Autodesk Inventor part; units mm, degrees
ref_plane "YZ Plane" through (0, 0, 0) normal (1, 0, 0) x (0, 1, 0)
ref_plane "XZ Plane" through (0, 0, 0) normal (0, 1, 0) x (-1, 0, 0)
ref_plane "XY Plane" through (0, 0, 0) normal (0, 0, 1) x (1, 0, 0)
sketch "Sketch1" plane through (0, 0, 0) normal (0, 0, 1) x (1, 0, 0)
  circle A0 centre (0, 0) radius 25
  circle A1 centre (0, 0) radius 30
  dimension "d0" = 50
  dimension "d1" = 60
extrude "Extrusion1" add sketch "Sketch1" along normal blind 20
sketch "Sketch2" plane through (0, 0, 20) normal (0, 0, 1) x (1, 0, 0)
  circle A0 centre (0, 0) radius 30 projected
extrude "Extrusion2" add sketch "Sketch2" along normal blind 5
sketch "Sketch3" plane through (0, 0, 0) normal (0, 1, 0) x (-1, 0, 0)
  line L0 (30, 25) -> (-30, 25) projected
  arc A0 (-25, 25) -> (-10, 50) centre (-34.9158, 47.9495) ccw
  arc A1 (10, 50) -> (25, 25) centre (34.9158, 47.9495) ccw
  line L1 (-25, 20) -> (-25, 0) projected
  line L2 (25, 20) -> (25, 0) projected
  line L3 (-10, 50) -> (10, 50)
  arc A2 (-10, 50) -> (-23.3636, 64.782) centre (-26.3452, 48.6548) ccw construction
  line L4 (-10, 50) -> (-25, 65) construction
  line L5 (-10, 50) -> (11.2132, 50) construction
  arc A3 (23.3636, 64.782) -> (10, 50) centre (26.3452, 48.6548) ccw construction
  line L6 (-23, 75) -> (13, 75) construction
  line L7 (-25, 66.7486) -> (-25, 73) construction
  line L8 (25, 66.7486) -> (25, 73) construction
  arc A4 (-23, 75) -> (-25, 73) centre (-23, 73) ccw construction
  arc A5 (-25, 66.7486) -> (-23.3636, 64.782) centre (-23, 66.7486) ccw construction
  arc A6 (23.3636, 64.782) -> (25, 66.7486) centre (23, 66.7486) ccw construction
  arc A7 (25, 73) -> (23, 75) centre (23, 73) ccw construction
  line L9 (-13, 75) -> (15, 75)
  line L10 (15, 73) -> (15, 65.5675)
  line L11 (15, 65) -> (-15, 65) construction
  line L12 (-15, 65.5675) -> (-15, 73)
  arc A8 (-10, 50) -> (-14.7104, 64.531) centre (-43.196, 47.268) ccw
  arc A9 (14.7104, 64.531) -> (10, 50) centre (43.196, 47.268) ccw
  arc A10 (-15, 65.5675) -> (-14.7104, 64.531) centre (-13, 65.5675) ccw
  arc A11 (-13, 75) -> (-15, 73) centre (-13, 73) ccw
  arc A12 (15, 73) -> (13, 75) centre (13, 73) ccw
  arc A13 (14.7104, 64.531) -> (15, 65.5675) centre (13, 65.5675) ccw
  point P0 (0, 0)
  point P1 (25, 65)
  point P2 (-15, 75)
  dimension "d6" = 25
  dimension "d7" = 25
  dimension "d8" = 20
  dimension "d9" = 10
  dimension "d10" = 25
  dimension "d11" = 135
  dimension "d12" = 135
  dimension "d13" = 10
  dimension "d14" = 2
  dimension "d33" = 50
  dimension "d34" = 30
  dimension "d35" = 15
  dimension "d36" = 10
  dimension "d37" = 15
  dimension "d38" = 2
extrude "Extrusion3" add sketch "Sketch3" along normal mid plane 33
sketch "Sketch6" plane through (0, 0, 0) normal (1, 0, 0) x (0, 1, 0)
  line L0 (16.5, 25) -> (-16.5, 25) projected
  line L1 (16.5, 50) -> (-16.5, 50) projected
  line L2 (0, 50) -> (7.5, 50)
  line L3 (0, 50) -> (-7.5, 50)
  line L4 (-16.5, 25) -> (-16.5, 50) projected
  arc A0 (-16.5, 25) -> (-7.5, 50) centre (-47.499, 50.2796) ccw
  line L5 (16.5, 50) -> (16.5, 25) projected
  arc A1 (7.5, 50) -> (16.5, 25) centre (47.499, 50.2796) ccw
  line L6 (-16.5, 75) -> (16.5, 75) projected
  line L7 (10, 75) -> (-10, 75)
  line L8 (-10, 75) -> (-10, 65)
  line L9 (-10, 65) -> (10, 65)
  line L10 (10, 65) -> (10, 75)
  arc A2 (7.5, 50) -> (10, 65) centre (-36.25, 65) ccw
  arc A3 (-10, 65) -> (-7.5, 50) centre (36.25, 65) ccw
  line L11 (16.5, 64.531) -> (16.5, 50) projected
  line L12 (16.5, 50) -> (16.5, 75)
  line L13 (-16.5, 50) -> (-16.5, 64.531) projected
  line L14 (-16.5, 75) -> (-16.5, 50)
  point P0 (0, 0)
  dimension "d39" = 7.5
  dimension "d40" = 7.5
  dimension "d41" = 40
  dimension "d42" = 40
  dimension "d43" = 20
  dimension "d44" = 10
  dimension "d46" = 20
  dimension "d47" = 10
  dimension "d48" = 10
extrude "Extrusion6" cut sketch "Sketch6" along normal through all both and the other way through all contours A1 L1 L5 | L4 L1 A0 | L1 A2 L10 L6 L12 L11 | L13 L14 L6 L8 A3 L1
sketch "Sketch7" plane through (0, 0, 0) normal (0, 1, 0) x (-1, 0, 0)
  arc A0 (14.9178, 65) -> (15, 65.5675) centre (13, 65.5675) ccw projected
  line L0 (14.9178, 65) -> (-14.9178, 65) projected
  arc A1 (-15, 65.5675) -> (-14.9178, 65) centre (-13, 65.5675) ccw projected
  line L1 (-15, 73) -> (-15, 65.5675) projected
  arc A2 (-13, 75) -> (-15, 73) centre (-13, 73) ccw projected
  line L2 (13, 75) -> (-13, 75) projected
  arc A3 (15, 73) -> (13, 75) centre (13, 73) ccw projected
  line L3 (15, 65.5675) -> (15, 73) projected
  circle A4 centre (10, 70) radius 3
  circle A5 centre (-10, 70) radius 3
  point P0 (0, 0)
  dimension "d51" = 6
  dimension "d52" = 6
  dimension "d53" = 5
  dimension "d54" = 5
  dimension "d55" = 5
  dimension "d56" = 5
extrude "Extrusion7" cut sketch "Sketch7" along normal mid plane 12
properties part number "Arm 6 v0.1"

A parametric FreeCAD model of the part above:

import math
import FreeCAD as App
import Part
import Sketcher
Q = App.Units.Quantity

doc = App.newDocument("Part")
body = doc.addObject("PartDesign::Body", "Body")

sketch1 = body.newObject("Sketcher::SketchObject", "Sketch")
sketch1.AttachmentSupport = (doc.getObject("XY_Plane"), [""])
sketch1.MapMode = "FlatFace"
sketch1.addGeometry([
    Part.Circle(App.Vector(0, 0, 0), App.Vector(0, 0, 1), 30),
    Part.Circle(App.Vector(0, 0, 0), App.Vector(0, 0, 1), 25),
], False)
sketch1.addConstraint([
    Sketcher.Constraint("Coincident", 0, 3, -1, 1),
    Sketcher.Constraint("Coincident", 1, 3, -1, 1),
    Sketcher.Constraint("Diameter", 0, Q("60 mm")),
    Sketcher.Constraint("Diameter", 1, Q("50 mm")),
])
pad1 = body.newObject("PartDesign::Pad", "Pad")
pad1.Profile = sketch1
pad1.Length = 20

sketch2 = body.newObject("Sketcher::SketchObject", "Sketch001")
sketch2.AttachmentSupport = (doc.getObject("XY_Plane"), [""])
sketch2.MapMode = "FlatFace"
sketch2.AttachmentOffset = App.Placement(App.Vector(0, 0, 20), App.Rotation())
sketch2.addGeometry(Part.Circle(App.Vector(0, 0, 0), App.Vector(0, 0, 1), 30), False)
sketch2.addConstraint([
    Sketcher.Constraint("Coincident", 0, 3, -1, 1),
    Sketcher.Constraint("Diameter", 0, Q("60 mm")),
])
pad2 = body.newObject("PartDesign::Pad", "Pad001")
pad2.Profile = sketch2
pad2.Length = 5

sketch3 = body.newObject("Sketcher::SketchObject", "Sketch002")
sketch3.AttachmentSupport = (doc.getObject("XZ_Plane"), [""])
sketch3.MapMode = "FlatFace"
sketch3.addGeometry([
    Part.LineSegment(App.Vector(25, 25, 0), App.Vector(-25, 25, 0)),
    Part.ArcOfCircle(Part.Circle(App.Vector(-34.9158, 47.9495, 0), App.Vector(0, 0, 1), 25.000033), math.radians(-66.632256), math.radians(4.704679)),
    Part.ArcOfCircle(Part.Circle(App.Vector(-43.196, 47.268, 0), App.Vector(0, 0, 1), 33.308266), math.radians(4.704787), math.radians(31.216932)),
    Part.ArcOfCircle(Part.Circle(App.Vector(-13, 65.5675, 0), App.Vector(0, 0, 1), 1.99995), math.radians(180), math.radians(211.215804)),
    Part.LineSegment(App.Vector(-15, 65.5675, 0), App.Vector(-15, 73, 0)),
    Part.ArcOfCircle(Part.Circle(App.Vector(-13, 73, 0), App.Vector(0, 0, 1), 2), math.radians(90), math.radians(180)),
    Part.LineSegment(App.Vector(-13, 75, 0), App.Vector(13, 75, 0)),
    Part.ArcOfCircle(Part.Circle(App.Vector(13, 73, 0), App.Vector(0, 0, 1), 2), math.radians(0), math.radians(90)),
    Part.LineSegment(App.Vector(15, 73, 0), App.Vector(15, 65.5675, 0)),
    Part.ArcOfCircle(Part.Circle(App.Vector(13, 65.5675, 0), App.Vector(0, 0, 1), 2), math.radians(-31.215804), math.radians(0)),
    Part.ArcOfCircle(Part.Circle(App.Vector(43.196, 47.268, 0), App.Vector(0, 0, 1), 33.308231), math.radians(148.783068), math.radians(175.295213)),
    Part.ArcOfCircle(Part.Circle(App.Vector(34.9158, 47.9495, 0), App.Vector(0, 0, 1), 25.000053), math.radians(175.295321), math.radians(246.632256)),
], False)
sketch3.addConstraint([
    Sketcher.Constraint("Coincident", 0, 2, 1, 1),
    Sketcher.Constraint("Tangent", 1, 2, 2, 1),
    Sketcher.Constraint("Tangent", 2, 2, 3, 2),
    Sketcher.Constraint("Tangent", 3, 1, 4, 1),
    Sketcher.Constraint("Tangent", 4, 2, 5, 2),
    Sketcher.Constraint("Tangent", 5, 1, 6, 1),
    Sketcher.Constraint("Tangent", 6, 2, 7, 2),
    Sketcher.Constraint("Tangent", 7, 1, 8, 1),
    Sketcher.Constraint("Tangent", 8, 2, 9, 2),
    Sketcher.Constraint("Tangent", 9, 1, 10, 1),
    Sketcher.Constraint("Tangent", 10, 2, 11, 1),
    Sketcher.Constraint("Coincident", 11, 2, 0, 1),
    Sketcher.Constraint("Horizontal", 0),
    Sketcher.Constraint("Vertical", 4),
    Sketcher.Constraint("Horizontal", 6),
    Sketcher.Constraint("Vertical", 8),
    Sketcher.Constraint("Equal", 3, 5),
    Sketcher.Constraint("Equal", 5, 7),
    Sketcher.Constraint("Equal", 7, 9),
    Sketcher.Constraint("Equal", 2, 10),
    Sketcher.Constraint("Equal", 1, 11),
    Sketcher.Constraint("Symmetric", 3, 3, 9, 3, -2),
    Sketcher.Constraint("Symmetric", 1, 3, 11, 3, -2),
    Sketcher.Constraint("Radius", 1, Q("25 mm")),
    Sketcher.Constraint("Radius", 3, Q("2 mm")),
    Sketcher.Constraint("DistanceX", 0, 2, 0, 1, Q("50 mm")),
    Sketcher.Constraint("DistanceY", -1, 1, 0, 2, Q("25 mm")),
    Sketcher.Constraint("DistanceX", 1, 2, -1, 1, Q("10 mm")),
    Sketcher.Constraint("DistanceY", -1, 1, 1, 2, Q("50 mm")),
    Sketcher.Constraint("DistanceX", 3, 1, -1, 1, Q("15 mm")),
    Sketcher.Constraint("DistanceY", -1, 1, 5, 3, Q("73 mm")),
    Sketcher.Constraint("Radius", 2, Q("33.3083 mm")),
])
pad3 = body.newObject("PartDesign::Pad", "Pad002")
pad3.Profile = sketch3
pad3.Length = 33
pad3.Midplane = True

sketch4 = body.newObject("Sketcher::SketchObject", "Sketch003")
sketch4.AttachmentSupport = (doc.getObject("YZ_Plane"), [""])
sketch4.MapMode = "FlatFace"
sketch4.addGeometry([
    Part.ArcOfCircle(Part.Circle(App.Vector(47.499, 50.2796, 0), App.Vector(0, 0, 1), 39.999977), math.radians(-179.599499), math.radians(-140.80285)),
    Part.LineSegment(App.Vector(16.5, 25, 0), App.Vector(16.5, 75, 0)),
    Part.LineSegment(App.Vector(16.5, 75, 0), App.Vector(10, 75, 0)),
    Part.LineSegment(App.Vector(10, 75, 0), App.Vector(10, 65, 0)),
    Part.ArcOfCircle(Part.Circle(App.Vector(-36.25, 65, 0), App.Vector(0, 0, 1), 46.25), math.radians(-18.924644), math.radians(0)),
    Part.ArcOfCircle(Part.Circle(App.Vector(-47.499, 50.2796, 0), App.Vector(0, 0, 1), 39.999952), math.radians(-39.19715), math.radians(-0.400501)),
    Part.ArcOfCircle(Part.Circle(App.Vector(36.25, 65, 0), App.Vector(0, 0, 1), 46.25), math.radians(180), math.radians(198.924644)),
    Part.LineSegment(App.Vector(-10, 65, 0), App.Vector(-10, 75, 0)),
    Part.LineSegment(App.Vector(-10, 75, 0), App.Vector(-16.5, 75, 0)),
    Part.LineSegment(App.Vector(-16.5, 75, 0), App.Vector(-16.5, 25, 0)),
], False)
sketch4.addConstraint([
    Sketcher.Constraint("Coincident", 0, 2, 1, 1),
    Sketcher.Constraint("Coincident", 1, 2, 2, 1),
    Sketcher.Constraint("Coincident", 2, 2, 3, 1),
    Sketcher.Constraint("Tangent", 3, 2, 4, 2),
    Sketcher.Constraint("Coincident", 4, 1, 0, 1),
    Sketcher.Constraint("Coincident", 5, 2, 6, 2),
    Sketcher.Constraint("Tangent", 6, 1, 7, 1),
    Sketcher.Constraint("Coincident", 7, 2, 8, 1),
    Sketcher.Constraint("Coincident", 8, 2, 9, 1),
    Sketcher.Constraint("Coincident", 9, 2, 5, 1),
    Sketcher.Constraint("Vertical", 1),
    Sketcher.Constraint("Horizontal", 2),
    Sketcher.Constraint("Vertical", 3),
    Sketcher.Constraint("Vertical", 7),
    Sketcher.Constraint("Horizontal", 8),
    Sketcher.Constraint("Vertical", 9),
    Sketcher.Constraint("Equal", 0, 5),
    Sketcher.Constraint("Equal", 4, 6),
    Sketcher.Constraint("Symmetric", 0, 3, 5, 3, -2),
    Sketcher.Constraint("Symmetric", 4, 3, 6, 3, -2),
    Sketcher.Constraint("Symmetric", 1, 2, 8, 2, -2),
    Sketcher.Constraint("Radius", 0, Q("40 mm")),
    Sketcher.Constraint("DistanceY", 3, 2, 3, 1, Q("10 mm")),
    Sketcher.Constraint("DistanceX", -1, 1, 2, 2, Q("10 mm")),
    Sketcher.Constraint("DistanceY", 0, 2, 6, 3, Q("40 mm")),
    Sketcher.Constraint("DistanceX", -1, 1, 4, 1, Q("7.5 mm")),
    Sketcher.Constraint("Radius", 4, Q("46.25 mm")),
    Sketcher.Constraint("DistanceX", 2, 2, 2, 1, Q("6.5 mm")),
    Sketcher.Constraint("DistanceY", -1, 1, 4, 3, Q("65 mm")),
])
pocket1 = body.newObject("PartDesign::Pocket", "Pocket")
pocket1.Profile = sketch4
pocket1.Type = "ThroughAll"
pocket1.Midplane = True

sketch5 = body.newObject("Sketcher::SketchObject", "Sketch004")
sketch5.AttachmentSupport = (doc.getObject("XZ_Plane"), [""])
sketch5.MapMode = "FlatFace"
sketch5.addGeometry([
    Part.LineSegment(App.Vector(14.9178, 65, 0), App.Vector(-14.9178, 65, 0)),
    Part.ArcOfCircle(Part.Circle(App.Vector(-13, 65.5675, 0), App.Vector(0, 0, 1), 2.000003), math.radians(180), math.radians(196.484117)),
    Part.LineSegment(App.Vector(-15, 65.5675, 0), App.Vector(-15, 73, 0)),
    Part.ArcOfCircle(Part.Circle(App.Vector(-13, 73, 0), App.Vector(0, 0, 1), 2), math.radians(90), math.radians(180)),
    Part.LineSegment(App.Vector(-13, 75, 0), App.Vector(13, 75, 0)),
    Part.ArcOfCircle(Part.Circle(App.Vector(13, 73, 0), App.Vector(0, 0, 1), 2), math.radians(0), math.radians(90)),
    Part.LineSegment(App.Vector(15, 73, 0), App.Vector(15, 65.5675, 0)),
    Part.ArcOfCircle(Part.Circle(App.Vector(13, 65.5675, 0), App.Vector(0, 0, 1), 2), math.radians(-16.484117), math.radians(0)),
    Part.Circle(App.Vector(10, 70, 0), App.Vector(0, 0, 1), 3),
    Part.Circle(App.Vector(-10, 70, 0), App.Vector(0, 0, 1), 3),
], False)
sketch5.addConstraint([
    Sketcher.Constraint("Coincident", 0, 2, 1, 2),
    Sketcher.Constraint("Tangent", 1, 1, 2, 1),
    Sketcher.Constraint("Tangent", 2, 2, 3, 2),
    Sketcher.Constraint("Tangent", 3, 1, 4, 1),
    Sketcher.Constraint("Tangent", 4, 2, 5, 2),
    Sketcher.Constraint("Tangent", 5, 1, 6, 1),
    Sketcher.Constraint("Tangent", 6, 2, 7, 2),
    Sketcher.Constraint("Coincident", 7, 1, 0, 1),
    Sketcher.Constraint("Horizontal", 0),
    Sketcher.Constraint("Vertical", 2),
    Sketcher.Constraint("Horizontal", 4),
    Sketcher.Constraint("Vertical", 6),
    Sketcher.Constraint("Equal", 1, 3),
    Sketcher.Constraint("Equal", 3, 5),
    Sketcher.Constraint("Equal", 5, 7),
    Sketcher.Constraint("Equal", 8, 9),
    Sketcher.Constraint("Symmetric", 1, 3, 7, 3, -2),
    Sketcher.Constraint("Symmetric", 8, 3, 9, 3, -2),
    Sketcher.Constraint("Diameter", 8, Q("6 mm")),
    Sketcher.Constraint("Radius", 1, Q("2 mm")),
    Sketcher.Constraint("DistanceY", 0, 2, 9, 3, Q("5 mm")),
    Sketcher.Constraint("DistanceX", 1, 1, 9, 3, Q("5 mm")),
    Sketcher.Constraint("DistanceY", 9, 3, 3, 1, Q("5 mm")),
    Sketcher.Constraint("DistanceX", 4, 1, 4, 2, Q("26 mm")),
    Sketcher.Constraint("DistanceY", -1, 1, 3, 3, Q("73 mm")),
    Sketcher.Constraint("DistanceX", 0, 2, 0, 1, Q("29.8356 mm")),
])
pocket2 = body.newObject("PartDesign::Pocket", "Pocket001")
pocket2.Profile = sketch5
pocket2.Length = 12
pocket2.Midplane = True

doc.recompute()
